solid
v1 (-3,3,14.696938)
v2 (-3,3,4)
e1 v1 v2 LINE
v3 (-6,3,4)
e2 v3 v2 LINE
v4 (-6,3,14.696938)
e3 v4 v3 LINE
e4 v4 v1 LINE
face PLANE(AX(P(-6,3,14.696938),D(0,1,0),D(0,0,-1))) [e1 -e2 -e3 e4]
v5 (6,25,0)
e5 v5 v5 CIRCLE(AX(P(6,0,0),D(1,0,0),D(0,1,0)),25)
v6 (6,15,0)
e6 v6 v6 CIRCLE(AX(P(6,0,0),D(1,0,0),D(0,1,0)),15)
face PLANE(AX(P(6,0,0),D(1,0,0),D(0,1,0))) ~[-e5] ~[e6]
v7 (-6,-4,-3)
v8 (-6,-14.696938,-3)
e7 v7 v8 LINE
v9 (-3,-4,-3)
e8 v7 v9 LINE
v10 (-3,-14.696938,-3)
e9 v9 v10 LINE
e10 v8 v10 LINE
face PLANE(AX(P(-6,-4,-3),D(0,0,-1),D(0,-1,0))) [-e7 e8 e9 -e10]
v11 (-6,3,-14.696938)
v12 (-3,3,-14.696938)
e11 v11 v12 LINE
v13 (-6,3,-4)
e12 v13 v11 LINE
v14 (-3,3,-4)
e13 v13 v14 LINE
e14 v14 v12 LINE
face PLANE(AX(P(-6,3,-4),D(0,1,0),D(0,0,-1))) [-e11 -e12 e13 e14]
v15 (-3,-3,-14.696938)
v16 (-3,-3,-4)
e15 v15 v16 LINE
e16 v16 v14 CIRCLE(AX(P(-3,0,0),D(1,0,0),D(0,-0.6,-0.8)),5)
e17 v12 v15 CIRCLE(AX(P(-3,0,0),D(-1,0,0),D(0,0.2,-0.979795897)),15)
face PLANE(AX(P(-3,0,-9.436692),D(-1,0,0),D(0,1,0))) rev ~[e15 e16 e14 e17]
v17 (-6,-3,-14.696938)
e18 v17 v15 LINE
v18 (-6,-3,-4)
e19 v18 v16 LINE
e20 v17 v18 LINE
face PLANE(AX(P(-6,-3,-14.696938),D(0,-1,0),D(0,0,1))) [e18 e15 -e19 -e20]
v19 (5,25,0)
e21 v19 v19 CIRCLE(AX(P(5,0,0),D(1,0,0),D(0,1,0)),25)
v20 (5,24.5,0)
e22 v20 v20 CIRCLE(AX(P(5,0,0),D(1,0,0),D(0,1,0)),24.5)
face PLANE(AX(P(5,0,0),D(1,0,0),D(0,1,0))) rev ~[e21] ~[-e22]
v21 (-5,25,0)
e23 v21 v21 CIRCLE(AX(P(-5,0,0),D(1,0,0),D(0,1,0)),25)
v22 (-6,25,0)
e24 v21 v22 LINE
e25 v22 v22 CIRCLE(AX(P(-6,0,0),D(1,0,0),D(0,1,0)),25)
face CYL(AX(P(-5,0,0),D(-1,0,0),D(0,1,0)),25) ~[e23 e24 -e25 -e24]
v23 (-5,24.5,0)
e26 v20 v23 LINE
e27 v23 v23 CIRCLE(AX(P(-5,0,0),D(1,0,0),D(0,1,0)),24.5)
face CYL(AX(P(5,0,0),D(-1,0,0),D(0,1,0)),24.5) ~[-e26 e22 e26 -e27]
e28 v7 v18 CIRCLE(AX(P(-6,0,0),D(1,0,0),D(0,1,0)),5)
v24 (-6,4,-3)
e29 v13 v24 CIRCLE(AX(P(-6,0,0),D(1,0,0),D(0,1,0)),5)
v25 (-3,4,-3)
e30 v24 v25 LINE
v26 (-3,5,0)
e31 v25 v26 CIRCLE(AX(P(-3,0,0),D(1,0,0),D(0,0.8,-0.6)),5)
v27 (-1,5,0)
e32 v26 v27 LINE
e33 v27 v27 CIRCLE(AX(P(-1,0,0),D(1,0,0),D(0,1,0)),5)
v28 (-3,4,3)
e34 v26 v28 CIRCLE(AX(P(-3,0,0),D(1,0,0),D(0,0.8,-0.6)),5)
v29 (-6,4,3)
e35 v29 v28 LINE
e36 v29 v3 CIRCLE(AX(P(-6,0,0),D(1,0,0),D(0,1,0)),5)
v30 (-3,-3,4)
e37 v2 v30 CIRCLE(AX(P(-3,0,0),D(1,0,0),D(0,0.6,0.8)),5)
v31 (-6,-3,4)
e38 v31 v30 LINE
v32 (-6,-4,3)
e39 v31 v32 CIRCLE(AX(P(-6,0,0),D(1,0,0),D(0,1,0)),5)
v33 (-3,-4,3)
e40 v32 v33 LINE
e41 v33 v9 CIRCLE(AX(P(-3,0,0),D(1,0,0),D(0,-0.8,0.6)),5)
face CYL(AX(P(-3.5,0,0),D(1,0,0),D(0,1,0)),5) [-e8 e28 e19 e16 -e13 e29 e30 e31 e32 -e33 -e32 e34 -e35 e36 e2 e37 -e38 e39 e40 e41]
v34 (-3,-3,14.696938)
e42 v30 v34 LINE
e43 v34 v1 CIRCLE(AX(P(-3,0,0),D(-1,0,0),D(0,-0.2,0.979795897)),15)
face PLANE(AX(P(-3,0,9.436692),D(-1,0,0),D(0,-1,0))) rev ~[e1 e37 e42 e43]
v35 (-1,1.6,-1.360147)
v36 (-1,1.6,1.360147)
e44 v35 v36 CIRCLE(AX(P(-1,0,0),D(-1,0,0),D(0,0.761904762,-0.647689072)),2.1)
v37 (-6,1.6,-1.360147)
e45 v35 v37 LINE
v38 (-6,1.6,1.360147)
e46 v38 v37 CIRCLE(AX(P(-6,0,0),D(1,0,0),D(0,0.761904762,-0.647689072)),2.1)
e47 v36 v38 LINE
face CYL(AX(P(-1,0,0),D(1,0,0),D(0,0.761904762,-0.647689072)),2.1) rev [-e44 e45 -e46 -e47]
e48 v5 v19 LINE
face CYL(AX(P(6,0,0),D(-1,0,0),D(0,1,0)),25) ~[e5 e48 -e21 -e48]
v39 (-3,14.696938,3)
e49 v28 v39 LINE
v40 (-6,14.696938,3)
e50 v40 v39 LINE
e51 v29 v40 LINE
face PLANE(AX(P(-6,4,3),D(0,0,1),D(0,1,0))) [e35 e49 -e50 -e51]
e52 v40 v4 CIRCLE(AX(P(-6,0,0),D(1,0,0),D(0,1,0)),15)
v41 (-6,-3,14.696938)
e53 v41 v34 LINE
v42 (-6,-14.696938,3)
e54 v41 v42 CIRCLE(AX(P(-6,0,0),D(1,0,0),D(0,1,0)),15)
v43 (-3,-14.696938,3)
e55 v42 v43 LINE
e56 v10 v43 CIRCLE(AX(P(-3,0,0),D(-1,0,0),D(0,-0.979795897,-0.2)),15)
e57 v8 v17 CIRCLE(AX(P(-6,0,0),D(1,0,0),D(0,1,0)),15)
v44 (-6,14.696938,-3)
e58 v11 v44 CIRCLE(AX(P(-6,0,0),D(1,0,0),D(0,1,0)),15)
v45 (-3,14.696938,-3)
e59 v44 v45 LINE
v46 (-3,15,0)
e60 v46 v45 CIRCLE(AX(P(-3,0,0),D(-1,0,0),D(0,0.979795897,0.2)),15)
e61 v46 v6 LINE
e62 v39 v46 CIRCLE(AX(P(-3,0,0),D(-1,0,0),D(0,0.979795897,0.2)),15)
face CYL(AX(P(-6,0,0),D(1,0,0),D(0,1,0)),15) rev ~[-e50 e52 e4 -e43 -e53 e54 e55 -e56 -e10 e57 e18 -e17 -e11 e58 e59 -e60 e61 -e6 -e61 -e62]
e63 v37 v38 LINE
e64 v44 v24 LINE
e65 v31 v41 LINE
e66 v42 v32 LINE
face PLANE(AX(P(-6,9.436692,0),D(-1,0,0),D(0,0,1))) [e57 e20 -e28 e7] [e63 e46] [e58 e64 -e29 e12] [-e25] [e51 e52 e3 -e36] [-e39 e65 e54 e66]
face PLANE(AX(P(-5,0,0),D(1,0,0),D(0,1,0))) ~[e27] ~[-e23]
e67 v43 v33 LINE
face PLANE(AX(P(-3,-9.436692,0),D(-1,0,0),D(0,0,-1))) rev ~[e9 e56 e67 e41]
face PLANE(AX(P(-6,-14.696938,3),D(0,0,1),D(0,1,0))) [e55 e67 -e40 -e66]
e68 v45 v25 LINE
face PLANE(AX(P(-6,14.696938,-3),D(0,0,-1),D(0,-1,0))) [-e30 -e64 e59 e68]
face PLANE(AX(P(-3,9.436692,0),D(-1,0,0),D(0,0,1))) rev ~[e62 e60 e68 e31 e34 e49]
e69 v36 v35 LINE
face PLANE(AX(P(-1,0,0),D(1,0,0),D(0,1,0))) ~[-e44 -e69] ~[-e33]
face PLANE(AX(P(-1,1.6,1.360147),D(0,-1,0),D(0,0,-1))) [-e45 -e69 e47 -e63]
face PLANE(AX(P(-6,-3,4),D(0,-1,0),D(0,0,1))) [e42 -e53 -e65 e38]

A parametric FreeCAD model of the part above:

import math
import FreeCAD as App
import Part
import Sketcher
from FreeCAD import Vector
Q = App.Units.Quantity

doc = App.newDocument("Part")
body = doc.addObject("PartDesign::Body", "Body")
body.AllowCompound = True

# Sketch on XY plane
sketch1 = body.newObject("Sketcher::SketchObject", "Sketch")
sketch1.AttachmentSupport = (doc.getObject("XY_Plane"), [""])
sketch1.MapMode = "FlatFace"
sketch1.addGeometry(Part.LineSegment(Vector(-6, 25, 0), Vector(-6, 15, 0)), False)
sketch1.addGeometry(Part.LineSegment(Vector(-6, 15, 0), Vector(6, 15, 0)), False)
sketch1.addGeometry(Part.LineSegment(Vector(6, 15, 0), Vector(6, 25, 0)), False)
sketch1.addGeometry(Part.LineSegment(Vector(6, 25, 0), Vector(5, 25, 0)), False)
sketch1.addGeometry(Part.LineSegment(Vector(5, 25, 0), Vector(5, 24.5, 0)), False)
sketch1.addGeometry(Part.LineSegment(Vector(5, 24.5, 0), Vector(-5, 24.5, 0)), False)
sketch1.addGeometry(Part.LineSegment(Vector(-5, 24.5, 0), Vector(-5, 25, 0)), False)
sketch1.addGeometry(Part.LineSegment(Vector(-5, 25, 0), Vector(-6, 25, 0)), False)
sketch1.addGeometry(Part.LineSegment(Vector(-6, 5, 0), Vector(-6, 0, 0)), False)
sketch1.addGeometry(Part.LineSegment(Vector(-6, 0, 0), Vector(-1, 0, 0)), False)
sketch1.addGeometry(Part.LineSegment(Vector(-1, 0, 0), Vector(-1, 5, 0)), False)
sketch1.addGeometry(Part.LineSegment(Vector(-1, 5, 0), Vector(-6, 5, 0)), False)
sketch1.addConstraint(Sketcher.Constraint("Coincident", 0, 2, 1, 1))
sketch1.addConstraint(Sketcher.Constraint("Coincident", 1, 2, 2, 1))
sketch1.addConstraint(Sketcher.Constraint("Coincident", 2, 2, 3, 1))
sketch1.addConstraint(Sketcher.Constraint("Coincident", 3, 2, 4, 1))
sketch1.addConstraint(Sketcher.Constraint("Coincident", 4, 2, 5, 1))
sketch1.addConstraint(Sketcher.Constraint("Coincident", 5, 2, 6, 1))
sketch1.addConstraint(Sketcher.Constraint("Coincident", 6, 2, 7, 1))
sketch1.addConstraint(Sketcher.Constraint("Coincident", 7, 2, 0, 1))
sketch1.addConstraint(Sketcher.Constraint("Coincident", 8, 2, 9, 1))
sketch1.addConstraint(Sketcher.Constraint("Coincident", 9, 2, 10, 1))
sketch1.addConstraint(Sketcher.Constraint("Coincident", 10, 2, 11, 1))
sketch1.addConstraint(Sketcher.Constraint("Coincident", 11, 2, 8, 1))
sketch1.addConstraint(Sketcher.Constraint("Vertical", 0))
sketch1.addConstraint(Sketcher.Constraint("Horizontal", 1))
sketch1.addConstraint(Sketcher.Constraint("Vertical", 2))
sketch1.addConstraint(Sketcher.Constraint("Horizontal", 3))
sketch1.addConstraint(Sketcher.Constraint("Vertical", 4))
sketch1.addConstraint(Sketcher.Constraint("Horizontal", 5))
sketch1.addConstraint(Sketcher.Constraint("Vertical", 6))
sketch1.addConstraint(Sketcher.Constraint("Horizontal", 7))
sketch1.addConstraint(Sketcher.Constraint("Vertical", 8))
sketch1.addConstraint(Sketcher.Constraint("Horizontal", 9))
sketch1.addConstraint(Sketcher.Constraint("Vertical", 10))
sketch1.addConstraint(Sketcher.Constraint("Horizontal", 11))
sketch1.addConstraint(Sketcher.Constraint("Symmetric", 3, 2, 6, 2, -2))
sketch1.addConstraint(Sketcher.Constraint("PointOnObject", 8, 2, -1))
sketch1.addConstraint(Sketcher.Constraint("Vertical", 7, 2, 8, 2))
sketch1.addConstraint(Sketcher.Constraint("Equal", 3, 7))
sketch1.addConstraint(Sketcher.Constraint("Equal", 5, 0))
sketch1.addConstraint(Sketcher.Constraint("Equal", 11, 8))
sketch1.addConstraint(Sketcher.Constraint("DistanceX", 1, 1, 1, 2, Q("12 mm")))
sketch1.addConstraint(Sketcher.Constraint("DistanceX", 3, 2, 3, 1, Q("1 mm")))
sketch1.addConstraint(Sketcher.Constraint("DistanceX", 9, 1, 9, 2, Q("5 mm")))
sketch1.addConstraint(Sketcher.Constraint("DistanceY", 4, 2, 4, 1, Q("0.5 mm")))
sketch1.addConstraint(Sketcher.Constraint("DistanceY", -1, 1, 0, 2, Q("15 mm")))
revolution = body.newObject("PartDesign::Revolution", "Revolution")
revolution.Profile = sketch1
revolution.ReferenceAxis = (sketch1, ["H_Axis"])
revolution.Angle = 360

# Sketch on YZ plane
sketch2 = body.newObject("Sketcher::SketchObject", "Sketch001")
sketch2.AttachmentSupport = (doc.getObject("YZ_Plane"), [""])
sketch2.MapMode = "FlatFace"
sketch2.AttachmentOffset = App.Placement(Vector(0, 0, -6), App.Rotation())
sketch2.addGeometry(Part.LineSegment(Vector(15, 3, 0), Vector(4, 3, 0)), False)
sketch2.addGeometry(Part.ArcOfCircle(Part.Circle(Vector(0, 0, 0), Vector(0, 0, 1), 5), math.radians(-37), math.radians(37)), False)
sketch2.addGeometry(Part.LineSegment(Vector(4, -3, 0), Vector(15, -3, 0)), False)
sketch2.addGeometry(Part.ArcOfCircle(Part.Circle(Vector(0, 0, 0), Vector(0, 0, 1), 15), math.radians(-12), math.radians(12)), False)
sketch2.addConstraint(Sketcher.Constraint("Coincident", 0, 2, 1, 2))
sketch2.addConstraint(Sketcher.Constraint("Coincident", 1, 1, 2, 1))
sketch2.addConstraint(Sketcher.Constraint("Coincident", 2, 2, 3, 1))
sketch2.addConstraint(Sketcher.Constraint("Coincident", 3, 2, 0, 1))
sketch2.addConstraint(Sketcher.Constraint("Horizontal", 0))
sketch2.addConstraint(Sketcher.Constraint("Horizontal", 2))
sketch2.addConstraint(Sketcher.Constraint("Coincident", 1, 3, -1, 1))
sketch2.addConstraint(Sketcher.Constraint("Coincident", 3, 3, -1, 1))
sketch2.addConstraint(Sketcher.Constraint("Vertical", 0, 2, 1, 1))
sketch2.addConstraint(Sketcher.Constraint("Radius", 1, Q("5 mm")))
sketch2.addConstraint(Sketcher.Constraint("Radius", 3, Q("15 mm")))
sketch2.addConstraint(Sketcher.Constraint("DistanceX", -1, 1, 0, 2, Q("4 mm")))
pad1 = body.newObject("PartDesign::Pad", "Pad")
pad1.Profile = sketch2
pad1.Length = 3

# Sketch on YZ plane
sketch3 = body.newObject("Sketcher::SketchObject", "Sketch002")
sketch3.AttachmentSupport = (doc.getObject("YZ_Plane"), [""])
sketch3.MapMode = "FlatFace"
sketch3.AttachmentOffset = App.Placement(Vector(0, 0, -1), App.Rotation())
sketch3.addGeometry(Part.LineSegment(Vector(1.6, -1.4, 0), Vector(1.6, 1.4, 0)), False)
sketch3.addGeometry(Part.ArcOfCircle(Part.Circle(Vector(0, 0, 0), Vector(0, 0, 1), 2.1), math.radians(40), math.radians(320)), False)
sketch3.addConstraint(Sketcher.Constraint("Coincident", 0, 1, 1, 2))
sketch3.addConstraint(Sketcher.Constraint("Coincident", 1, 1, 0, 2))
sketch3.addConstraint(Sketcher.Constraint("Vertical", 0))
sketch3.addConstraint(Sketcher.Constraint("Coincident", 1, 3, -1, 1))
sketch3.addConstraint(Sketcher.Constraint("Radius", 1, Q("2.1 mm")))
sketch3.addConstraint(Sketcher.Constraint("DistanceX", -1, 1, 0, 1, Q("1.6 mm")))
pocket1 = body.newObject("PartDesign::Pocket", "Pocket")
pocket1.Profile = sketch3
pocket1.Type = "ThroughAll"
pocket1.Midplane = True
doc.recompute()

polarpattern = body.newObject("PartDesign::PolarPattern", "PolarPattern")
polarpattern.Originals = [pad1]
polarpattern.Axis = (doc.getObject("X_Axis"), [""])
polarpattern.Angle = 360
polarpattern.Occurrences = 4
body.Tip = polarpattern

doc.recompute()
